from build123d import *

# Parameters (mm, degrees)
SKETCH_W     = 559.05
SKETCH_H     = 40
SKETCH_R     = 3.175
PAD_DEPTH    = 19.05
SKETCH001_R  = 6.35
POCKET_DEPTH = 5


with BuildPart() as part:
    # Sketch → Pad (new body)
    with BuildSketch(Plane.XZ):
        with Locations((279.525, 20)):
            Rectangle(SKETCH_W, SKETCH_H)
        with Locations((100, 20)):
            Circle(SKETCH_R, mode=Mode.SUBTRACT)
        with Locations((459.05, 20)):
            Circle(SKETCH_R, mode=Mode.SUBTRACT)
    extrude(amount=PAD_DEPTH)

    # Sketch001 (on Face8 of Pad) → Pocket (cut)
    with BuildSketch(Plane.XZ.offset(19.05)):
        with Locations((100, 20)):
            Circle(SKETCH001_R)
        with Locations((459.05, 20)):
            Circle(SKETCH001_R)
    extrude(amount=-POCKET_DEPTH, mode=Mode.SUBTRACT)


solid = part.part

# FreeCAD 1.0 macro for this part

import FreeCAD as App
import Part
import Sketcher
Q = App.Units.Quantity


def add_polygon(sketch, points):
    """Adds a closed chain of lines whose ends are joined by coincident constraints."""
    first, n = sketch.GeometryCount, len(points)
    for a, b in zip(points, points[1:] + points[:1]):
        sketch.addGeometry(Part.LineSegment(App.Vector(*a, 0), App.Vector(*b, 0)), False)
    for i in range(n):
        sketch.addConstraint(Sketcher.Constraint("Coincident", first + i, 2, first + (i + 1) % n, 1))

doc = App.newDocument("Part")
params = doc.addObject("Spreadsheet::Sheet", "Params")
for row, (alias, value) in enumerate([
    ("sketch1_diameter", "0.25 in"),
    ("pad1_length", "0.75 in"),
    ("sketch2_diameter", "0.5 in"),
    ("pocket1_length", "5 mm"),
], start=1):
    params.set(f"A{row}", alias)
    params.set(f"B{row}", "=" + value)
    params.setAlias(f"B{row}", alias)

body = doc.addObject("PartDesign::Body", "Body")

# Sketch on XZ plane
sketch1 = body.newObject("Sketcher::SketchObject", "Sketch")
sketch1.AttachmentSupport = (doc.getObject("XZ_Plane"), [""])
sketch1.MapMode = "FlatFace"
add_polygon(sketch1, [(0, 40), (0, 0), (559, 0), (559, 40)])  # lines 0-3
sketch1.addGeometry(Part.Circle(App.Vector(100, 20, 0), App.Vector(0, 0, 1), 3.2), False)  # 4
sketch1.addGeometry(Part.Circle(App.Vector(459.1, 20, 0), App.Vector(0, 0, 1), 3.2), False)  # 5
sketch1.addConstraint([
    Sketcher.Constraint("Vertical", 0),
    Sketcher.Constraint("Horizontal", 1),
    Sketcher.Constraint("Vertical", 2),
    Sketcher.Constraint("Horizontal", 3),
    Sketcher.Constraint("Coincident", 0, 2, -1, 1),
    Sketcher.Constraint("Equal", 4, 5),
    Sketcher.Constraint("Horizontal", 4, 3, 5, 3),
    Sketcher.Constraint("Diameter", 4, Q("0.25 in")),
    Sketcher.Constraint("DistanceX", 1, 1, 1, 2, 559.05),
    Sketcher.Constraint("DistanceY", 0, 2, 0, 1, 40.0),
    Sketcher.Constraint("DistanceX", -1, 1, 4, 3, 100.0),
    Sketcher.Constraint("DistanceY", -1, 1, 4, 3, 20.0),
    Sketcher.Constraint("DistanceX", -1, 1, 5, 3, 459.05),
])
sketch1.setExpression("Constraints[11]", "Params.sketch1_diameter")
pad1 = body.newObject("PartDesign::Pad", "Pad")
pad1.Profile = sketch1
pad1.setExpression("Length", "Params.pad1_length")

# Sketch on XZ plane
sketch2 = body.newObject("Sketcher::SketchObject", "Sketch001")
sketch2.AttachmentSupport = (doc.getObject("XZ_Plane"), [""])
sketch2.MapMode = "FlatFace"
sketch2.AttachmentOffset = App.Placement(App.Vector(0, 0, 0.75 * 25.4), App.Rotation())
sketch2.addGeometry([
    Part.Circle(App.Vector(100, 20, 0), App.Vector(0, 0, 1), 6),
    Part.Circle(App.Vector(459, 20, 0), App.Vector(0, 0, 1), 6),
], False)
sketch2.addConstraint([
    Sketcher.Constraint("Equal", 0, 1),
    Sketcher.Constraint("Horizontal", 0, 3, 1, 3),
    Sketcher.Constraint("Diameter", 0, Q("0.5 in")),
    Sketcher.Constraint("DistanceX", -1, 1, 0, 3, 100.0),
    Sketcher.Constraint("DistanceY", -1, 1, 0, 3, 20.0),
    Sketcher.Constraint("DistanceX", -1, 1, 1, 3, 459.05),
])
sketch2.setExpression("Constraints[2]", "Params.sketch2_diameter")
pocket1 = body.newObject("PartDesign::Pocket", "Pocket")
pocket1.Profile = sketch2
pocket1.setExpression("Length", "Params.pocket1_length")

doc.recompute()
